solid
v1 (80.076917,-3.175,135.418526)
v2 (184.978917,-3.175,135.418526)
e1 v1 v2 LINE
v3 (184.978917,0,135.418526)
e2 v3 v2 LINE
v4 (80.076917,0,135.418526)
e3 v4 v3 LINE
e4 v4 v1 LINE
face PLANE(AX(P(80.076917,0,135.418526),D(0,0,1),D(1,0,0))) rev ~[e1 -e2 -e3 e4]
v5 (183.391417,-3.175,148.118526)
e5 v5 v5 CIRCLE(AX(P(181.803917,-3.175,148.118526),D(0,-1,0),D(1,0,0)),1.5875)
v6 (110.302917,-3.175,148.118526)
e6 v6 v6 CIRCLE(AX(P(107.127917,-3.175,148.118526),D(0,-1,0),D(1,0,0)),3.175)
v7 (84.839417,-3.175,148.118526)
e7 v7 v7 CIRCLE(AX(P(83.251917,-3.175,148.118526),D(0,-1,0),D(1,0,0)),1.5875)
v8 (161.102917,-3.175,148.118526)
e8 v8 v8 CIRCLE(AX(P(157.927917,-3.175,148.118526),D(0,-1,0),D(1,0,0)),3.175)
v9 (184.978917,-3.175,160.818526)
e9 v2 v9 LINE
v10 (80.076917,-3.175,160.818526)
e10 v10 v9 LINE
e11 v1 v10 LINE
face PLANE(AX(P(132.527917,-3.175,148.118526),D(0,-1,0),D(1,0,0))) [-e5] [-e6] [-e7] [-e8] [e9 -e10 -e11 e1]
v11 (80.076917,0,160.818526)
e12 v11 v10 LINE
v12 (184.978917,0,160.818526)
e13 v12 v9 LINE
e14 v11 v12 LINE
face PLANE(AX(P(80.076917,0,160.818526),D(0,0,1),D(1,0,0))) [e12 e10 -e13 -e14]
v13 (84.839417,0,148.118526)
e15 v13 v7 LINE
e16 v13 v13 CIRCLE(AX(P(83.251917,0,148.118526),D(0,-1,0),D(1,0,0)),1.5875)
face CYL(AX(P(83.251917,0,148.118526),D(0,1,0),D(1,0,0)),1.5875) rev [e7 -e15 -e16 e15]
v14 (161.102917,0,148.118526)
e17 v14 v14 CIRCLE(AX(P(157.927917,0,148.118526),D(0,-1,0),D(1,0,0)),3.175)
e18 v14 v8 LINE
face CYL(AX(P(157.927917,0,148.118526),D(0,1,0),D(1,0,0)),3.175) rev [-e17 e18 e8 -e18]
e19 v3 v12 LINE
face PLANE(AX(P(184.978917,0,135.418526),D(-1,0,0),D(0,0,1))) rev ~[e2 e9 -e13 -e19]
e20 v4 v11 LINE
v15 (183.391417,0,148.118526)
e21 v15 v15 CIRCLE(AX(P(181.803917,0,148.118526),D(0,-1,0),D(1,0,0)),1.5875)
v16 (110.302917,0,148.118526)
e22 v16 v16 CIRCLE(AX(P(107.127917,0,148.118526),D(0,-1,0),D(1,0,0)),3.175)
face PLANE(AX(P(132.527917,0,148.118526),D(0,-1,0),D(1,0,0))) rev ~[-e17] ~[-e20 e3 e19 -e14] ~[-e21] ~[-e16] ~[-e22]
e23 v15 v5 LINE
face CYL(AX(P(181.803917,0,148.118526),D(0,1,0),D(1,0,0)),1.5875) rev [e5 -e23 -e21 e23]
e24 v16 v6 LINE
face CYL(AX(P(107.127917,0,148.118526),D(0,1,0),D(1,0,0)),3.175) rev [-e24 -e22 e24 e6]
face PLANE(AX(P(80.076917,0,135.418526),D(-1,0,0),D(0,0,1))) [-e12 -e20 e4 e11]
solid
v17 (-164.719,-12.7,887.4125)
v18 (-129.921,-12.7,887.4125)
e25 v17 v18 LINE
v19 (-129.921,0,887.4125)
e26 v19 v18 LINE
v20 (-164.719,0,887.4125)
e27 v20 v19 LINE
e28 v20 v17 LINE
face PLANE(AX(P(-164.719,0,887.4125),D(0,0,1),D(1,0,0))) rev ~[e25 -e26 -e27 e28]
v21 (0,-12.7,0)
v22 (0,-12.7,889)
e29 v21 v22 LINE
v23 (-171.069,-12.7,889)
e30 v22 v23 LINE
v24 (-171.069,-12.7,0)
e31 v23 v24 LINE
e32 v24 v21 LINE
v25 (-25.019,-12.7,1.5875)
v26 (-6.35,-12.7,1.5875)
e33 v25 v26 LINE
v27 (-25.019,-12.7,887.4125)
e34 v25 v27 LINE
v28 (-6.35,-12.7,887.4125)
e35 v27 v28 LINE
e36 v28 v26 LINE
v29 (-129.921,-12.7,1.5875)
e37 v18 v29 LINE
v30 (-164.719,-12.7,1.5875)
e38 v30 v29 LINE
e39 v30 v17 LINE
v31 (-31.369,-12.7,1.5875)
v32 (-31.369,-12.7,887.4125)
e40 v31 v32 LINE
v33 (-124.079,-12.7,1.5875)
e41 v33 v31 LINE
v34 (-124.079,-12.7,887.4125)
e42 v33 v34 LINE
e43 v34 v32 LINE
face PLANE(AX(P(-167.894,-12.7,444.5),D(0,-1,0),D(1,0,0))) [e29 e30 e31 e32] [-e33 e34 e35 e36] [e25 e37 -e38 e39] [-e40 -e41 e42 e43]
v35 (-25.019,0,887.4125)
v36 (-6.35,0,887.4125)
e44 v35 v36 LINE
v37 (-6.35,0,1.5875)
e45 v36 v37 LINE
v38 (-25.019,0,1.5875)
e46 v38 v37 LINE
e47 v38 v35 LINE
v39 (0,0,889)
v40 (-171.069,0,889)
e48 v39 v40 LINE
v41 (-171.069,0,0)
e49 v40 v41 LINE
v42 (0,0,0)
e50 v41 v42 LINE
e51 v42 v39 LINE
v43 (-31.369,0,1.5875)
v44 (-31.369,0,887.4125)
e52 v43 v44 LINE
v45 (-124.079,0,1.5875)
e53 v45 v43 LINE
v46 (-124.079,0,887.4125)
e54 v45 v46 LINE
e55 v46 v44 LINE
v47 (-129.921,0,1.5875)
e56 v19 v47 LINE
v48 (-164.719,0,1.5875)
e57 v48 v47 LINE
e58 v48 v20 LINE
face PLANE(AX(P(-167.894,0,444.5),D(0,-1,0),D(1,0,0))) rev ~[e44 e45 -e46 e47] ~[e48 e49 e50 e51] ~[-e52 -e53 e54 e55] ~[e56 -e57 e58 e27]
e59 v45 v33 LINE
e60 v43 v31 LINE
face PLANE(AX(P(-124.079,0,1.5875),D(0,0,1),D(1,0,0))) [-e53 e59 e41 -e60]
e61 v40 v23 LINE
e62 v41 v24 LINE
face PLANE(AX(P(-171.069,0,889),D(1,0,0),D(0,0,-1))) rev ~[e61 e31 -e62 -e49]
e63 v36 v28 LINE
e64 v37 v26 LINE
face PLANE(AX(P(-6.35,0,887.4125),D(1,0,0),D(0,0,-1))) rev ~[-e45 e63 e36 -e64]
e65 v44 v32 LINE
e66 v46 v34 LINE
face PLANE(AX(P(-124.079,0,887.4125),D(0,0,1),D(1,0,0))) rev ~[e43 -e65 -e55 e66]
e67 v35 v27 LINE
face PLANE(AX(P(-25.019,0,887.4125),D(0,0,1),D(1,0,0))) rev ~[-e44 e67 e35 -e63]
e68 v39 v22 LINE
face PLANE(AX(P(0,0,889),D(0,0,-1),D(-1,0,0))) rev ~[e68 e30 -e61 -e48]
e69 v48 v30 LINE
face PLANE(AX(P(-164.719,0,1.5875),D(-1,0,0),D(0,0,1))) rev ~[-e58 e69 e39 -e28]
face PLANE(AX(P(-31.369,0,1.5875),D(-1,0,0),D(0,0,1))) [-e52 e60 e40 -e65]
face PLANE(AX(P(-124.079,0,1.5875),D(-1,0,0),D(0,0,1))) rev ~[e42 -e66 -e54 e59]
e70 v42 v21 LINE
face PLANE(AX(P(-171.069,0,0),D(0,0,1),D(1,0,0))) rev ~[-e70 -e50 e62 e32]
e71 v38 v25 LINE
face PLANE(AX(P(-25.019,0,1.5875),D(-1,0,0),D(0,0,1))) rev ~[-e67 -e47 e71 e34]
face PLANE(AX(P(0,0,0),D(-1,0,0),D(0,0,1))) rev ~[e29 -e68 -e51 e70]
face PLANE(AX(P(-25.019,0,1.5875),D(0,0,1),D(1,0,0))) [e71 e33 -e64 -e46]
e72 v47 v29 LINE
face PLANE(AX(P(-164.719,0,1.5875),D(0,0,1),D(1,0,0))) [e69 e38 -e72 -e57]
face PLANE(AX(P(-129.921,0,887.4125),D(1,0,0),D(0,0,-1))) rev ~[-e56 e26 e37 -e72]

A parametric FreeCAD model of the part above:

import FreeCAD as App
import Part
import Sketcher

V = App.Vector
Q = App.Units.Quantity

doc = App.newDocument("Part")
body = doc.addObject("PartDesign::Body", "Body")

sketch1 = body.newObject("Sketcher::SketchObject", "Sketch")
sketch1.AttachmentSupport = (doc.getObject("XZ_Plane"), [""])
sketch1.MapMode = "FlatFace"
sketch1.addGeometry(Part.LineSegment(V(-171.069, 0, 0), V(0, 0, 0)), False)
sketch1.addGeometry(Part.LineSegment(V(0, 0, 0), V(0, 889, 0)), False)
sketch1.addGeometry(Part.LineSegment(V(0, 889, 0), V(-171.069, 889, 0)), False)
sketch1.addGeometry(Part.LineSegment(V(-171.069, 889, 0), V(-171.069, 0, 0)), False)
sketch1.addGeometry(Part.LineSegment(V(-129.921, 887.4125, 0), V(-129.921, 1.5875, 0)), False)
sketch1.addGeometry(Part.LineSegment(V(-129.921, 1.5875, 0), V(-164.719, 1.5875, 0)), False)
sketch1.addGeometry(Part.LineSegment(V(-164.719, 1.5875, 0), V(-164.719, 887.4125, 0)), False)
sketch1.addGeometry(Part.LineSegment(V(-164.719, 887.4125, 0), V(-129.921, 887.4125, 0)), False)
sketch1.addGeometry(Part.LineSegment(V(-31.369, 887.4125, 0), V(-31.369, 1.5875, 0)), False)
sketch1.addGeometry(Part.LineSegment(V(-31.369, 1.5875, 0), V(-124.079, 1.5875, 0)), False)
sketch1.addGeometry(Part.LineSegment(V(-124.079, 1.5875, 0), V(-124.079, 887.4125, 0)), False)
sketch1.addGeometry(Part.LineSegment(V(-124.079, 887.4125, 0), V(-31.369, 887.4125, 0)), False)
sketch1.addGeometry(Part.LineSegment(V(-6.35, 1.5875, 0), V(-25.019, 1.5875, 0)), False)
sketch1.addGeometry(Part.LineSegment(V(-25.019, 1.5875, 0), V(-25.019, 887.4125, 0)), False)
sketch1.addGeometry(Part.LineSegment(V(-25.019, 887.4125, 0), V(-6.35, 887.4125, 0)), False)
sketch1.addGeometry(Part.LineSegment(V(-6.35, 887.4125, 0), V(-6.35, 1.5875, 0)), False)
sketch1.addConstraint(Sketcher.Constraint("Coincident", 0, 2, 1, 1))
sketch1.addConstraint(Sketcher.Constraint("Coincident", 1, 2, 2, 1))
sketch1.addConstraint(Sketcher.Constraint("Coincident", 2, 2, 3, 1))
sketch1.addConstraint(Sketcher.Constraint("Coincident", 3, 2, 0, 1))
sketch1.addConstraint(Sketcher.Constraint("Coincident", 4, 2, 5, 1))
sketch1.addConstraint(Sketcher.Constraint("Coincident", 5, 2, 6, 1))
sketch1.addConstraint(Sketcher.Constraint("Coincident", 6, 2, 7, 1))
sketch1.addConstraint(Sketcher.Constraint("Coincident", 7, 2, 4, 1))
sketch1.addConstraint(Sketcher.Constraint("Coincident", 8, 2, 9, 1))
sketch1.addConstraint(Sketcher.Constraint("Coincident", 9, 2, 10, 1))
sketch1.addConstraint(Sketcher.Constraint("Coincident", 10, 2, 11, 1))
sketch1.addConstraint(Sketcher.Constraint("Coincident", 11, 2, 8, 1))
sketch1.addConstraint(Sketcher.Constraint("Coincident", 12, 2, 13, 1))
sketch1.addConstraint(Sketcher.Constraint("Coincident", 13, 2, 14, 1))
sketch1.addConstraint(Sketcher.Constraint("Coincident", 14, 2, 15, 1))
sketch1.addConstraint(Sketcher.Constraint("Coincident", 15, 2, 12, 1))
sketch1.addConstraint(Sketcher.Constraint("Horizontal", 0))
sketch1.addConstraint(Sketcher.Constraint("Vertical", 1))
sketch1.addConstraint(Sketcher.Constraint("Horizontal", 2))
sketch1.addConstraint(Sketcher.Constraint("Vertical", 3))
sketch1.addConstraint(Sketcher.Constraint("Vertical", 4))
sketch1.addConstraint(Sketcher.Constraint("Horizontal", 5))
sketch1.addConstraint(Sketcher.Constraint("Vertical", 6))
sketch1.addConstraint(Sketcher.Constraint("Horizontal", 7))
sketch1.addConstraint(Sketcher.Constraint("Vertical", 8))
sketch1.addConstraint(Sketcher.Constraint("Horizontal", 9))
sketch1.addConstraint(Sketcher.Constraint("Vertical", 10))
sketch1.addConstraint(Sketcher.Constraint("Horizontal", 11))
sketch1.addConstraint(Sketcher.Constraint("Horizontal", 12))
sketch1.addConstraint(Sketcher.Constraint("Vertical", 13))
sketch1.addConstraint(Sketcher.Constraint("Horizontal", 14))
sketch1.addConstraint(Sketcher.Constraint("Vertical", 15))
sketch1.addConstraint(Sketcher.Constraint("Coincident", 0, 2, -1, 1))
sketch1.addConstraint(Sketcher.Constraint("Horizontal", 5, 2, 8, 2))
sketch1.addConstraint(Sketcher.Constraint("Horizontal", 7, 2, 10, 2))
sketch1.addConstraint(Sketcher.Constraint("Horizontal", 9, 2, 12, 2))
sketch1.addConstraint(Sketcher.Constraint("Horizontal", 11, 2, 13, 2))
sketch1.addConstraint(Sketcher.Constraint("DistanceY", 1, 1, 1, 2, Q("35 in")))
sketch1.addConstraint(Sketcher.Constraint("DistanceX", 5, 2, 5, 1, Q("1.37 in")))
sketch1.addConstraint(Sketcher.Constraint("DistanceX", 9, 2, 9, 1, Q("3.65 in")))
sketch1.addConstraint(Sketcher.Constraint("DistanceX", 3, 2, 8, 2, Q("5.5 in")))
sketch1.addConstraint(Sketcher.Constraint("DistanceX", 5, 2, 9, 2, Q("1.6 in")))
sketch1.addConstraint(Sketcher.Constraint("DistanceX", 9, 2, 12, 2, Q("3.9 in")))
sketch1.addConstraint(Sketcher.Constraint("DistanceX", 0, 1, 0, 2, Q("6.735 in")))
sketch1.addConstraint(Sketcher.Constraint("DistanceX", 12, 2, 12, 1, Q("0.735 in")))
sketch1.addConstraint(Sketcher.Constraint("DistanceY", 4, 2, 4, 1, Q("34.875 in")))
sketch1.addConstraint(Sketcher.Constraint("DistanceY", -1, 1, 4, 2, Q("0.0625 in")))
pad1 = body.newObject("PartDesign::Pad", "Pad")
pad1.Profile = sketch1
pad1.Length = Q("0.5 in")
body2 = doc.addObject("PartDesign::Body", "Body001")

sketch2 = body2.newObject("Sketcher::SketchObject", "Sketch001")
sketch2.AttachmentSupport = (doc.getObject("XZ_Plane001"), [""])
sketch2.MapMode = "FlatFace"
sketch2.addGeometry(Part.LineSegment(V(80.076917, 160.818526, 0), V(80.076917, 135.418526, 0)), False)
sketch2.addGeometry(Part.LineSegment(V(80.076917, 135.418526, 0), V(184.978917, 135.418526, 0)), False)
sketch2.addGeometry(Part.LineSegment(V(184.978917, 135.418526, 0), V(184.978917, 160.818526, 0)), False)
sketch2.addGeometry(Part.LineSegment(V(184.978917, 160.818526, 0), V(80.076917, 160.818526, 0)), False)
sketch2.addGeometry(Part.Circle(V(83.251917, 148.118526, 0), V(0, 0, 1), 1.5875), False)
sketch2.addGeometry(Part.Circle(V(107.127917, 148.118526, 0), V(0, 0, 1), 3.175), False)
sketch2.addGeometry(Part.Circle(V(157.927917, 148.118526, 0), V(0, 0, 1), 3.175), False)
sketch2.addGeometry(Part.Circle(V(181.803917, 148.118526, 0), V(0, 0, 1), 1.5875), False)
sketch2.addConstraint(Sketcher.Constraint("Coincident", 0, 2, 1, 1))
sketch2.addConstraint(Sketcher.Constraint("Coincident", 1, 2, 2, 1))
sketch2.addConstraint(Sketcher.Constraint("Coincident", 2, 2, 3, 1))
sketch2.addConstraint(Sketcher.Constraint("Coincident", 3, 2, 0, 1))
sketch2.addConstraint(Sketcher.Constraint("Vertical", 0))
sketch2.addConstraint(Sketcher.Constraint("Horizontal", 1))
sketch2.addConstraint(Sketcher.Constraint("Vertical", 2))
sketch2.addConstraint(Sketcher.Constraint("Horizontal", 3))
sketch2.addConstraint(Sketcher.Constraint("Equal", 5, 6))
sketch2.addConstraint(Sketcher.Constraint("Equal", 4, 7))
sketch2.addConstraint(Sketcher.Constraint("Horizontal", 4, 3, 5, 3))
sketch2.addConstraint(Sketcher.Constraint("Horizontal", 5, 3, 6, 3))
sketch2.addConstraint(Sketcher.Constraint("Horizontal", 6, 3, 7, 3))
sketch2.addConstraint(Sketcher.Constraint("Diameter", 5, Q("0.25 in")))
sketch2.addConstraint(Sketcher.Constraint("DistanceY", 0, 2, 0, 1, Q("1 in")))
sketch2.addConstraint(Sketcher.Constraint("Diameter", 4, Q("0.125 in")))
sketch2.addConstraint(Sketcher.Constraint("DistanceX", 5, 3, 6, 3, Q("2 in")))
sketch2.addConstraint(Sketcher.Constraint("DistanceX", 1, 1, 1, 2, Q("4.13 in")))
sketch2.addConstraint(Sketcher.Constraint("DistanceY", 0, 2, 4, 3, Q("0.5 in")))
sketch2.addConstraint(Sketcher.Constraint("DistanceX", 4, 3, 5, 3, Q("0.94 in")))
sketch2.addConstraint(Sketcher.Constraint("DistanceX", 6, 3, 7, 3, Q("0.94 in")))
sketch2.addConstraint(Sketcher.Constraint("DistanceX", 0, 2, 4, 3, Q("0.125 in")))
sketch2.addConstraint(Sketcher.Constraint("DistanceX", -1, 1, 4, 3, Q("83.251917 mm")))
sketch2.addConstraint(Sketcher.Constraint("DistanceY", -1, 1, 4, 3, Q("148.118526 mm")))
pad2 = body2.newObject("PartDesign::Pad", "Pad001")
pad2.Profile = sketch2
pad2.Length = Q("0.125 in")

doc.recompute()
